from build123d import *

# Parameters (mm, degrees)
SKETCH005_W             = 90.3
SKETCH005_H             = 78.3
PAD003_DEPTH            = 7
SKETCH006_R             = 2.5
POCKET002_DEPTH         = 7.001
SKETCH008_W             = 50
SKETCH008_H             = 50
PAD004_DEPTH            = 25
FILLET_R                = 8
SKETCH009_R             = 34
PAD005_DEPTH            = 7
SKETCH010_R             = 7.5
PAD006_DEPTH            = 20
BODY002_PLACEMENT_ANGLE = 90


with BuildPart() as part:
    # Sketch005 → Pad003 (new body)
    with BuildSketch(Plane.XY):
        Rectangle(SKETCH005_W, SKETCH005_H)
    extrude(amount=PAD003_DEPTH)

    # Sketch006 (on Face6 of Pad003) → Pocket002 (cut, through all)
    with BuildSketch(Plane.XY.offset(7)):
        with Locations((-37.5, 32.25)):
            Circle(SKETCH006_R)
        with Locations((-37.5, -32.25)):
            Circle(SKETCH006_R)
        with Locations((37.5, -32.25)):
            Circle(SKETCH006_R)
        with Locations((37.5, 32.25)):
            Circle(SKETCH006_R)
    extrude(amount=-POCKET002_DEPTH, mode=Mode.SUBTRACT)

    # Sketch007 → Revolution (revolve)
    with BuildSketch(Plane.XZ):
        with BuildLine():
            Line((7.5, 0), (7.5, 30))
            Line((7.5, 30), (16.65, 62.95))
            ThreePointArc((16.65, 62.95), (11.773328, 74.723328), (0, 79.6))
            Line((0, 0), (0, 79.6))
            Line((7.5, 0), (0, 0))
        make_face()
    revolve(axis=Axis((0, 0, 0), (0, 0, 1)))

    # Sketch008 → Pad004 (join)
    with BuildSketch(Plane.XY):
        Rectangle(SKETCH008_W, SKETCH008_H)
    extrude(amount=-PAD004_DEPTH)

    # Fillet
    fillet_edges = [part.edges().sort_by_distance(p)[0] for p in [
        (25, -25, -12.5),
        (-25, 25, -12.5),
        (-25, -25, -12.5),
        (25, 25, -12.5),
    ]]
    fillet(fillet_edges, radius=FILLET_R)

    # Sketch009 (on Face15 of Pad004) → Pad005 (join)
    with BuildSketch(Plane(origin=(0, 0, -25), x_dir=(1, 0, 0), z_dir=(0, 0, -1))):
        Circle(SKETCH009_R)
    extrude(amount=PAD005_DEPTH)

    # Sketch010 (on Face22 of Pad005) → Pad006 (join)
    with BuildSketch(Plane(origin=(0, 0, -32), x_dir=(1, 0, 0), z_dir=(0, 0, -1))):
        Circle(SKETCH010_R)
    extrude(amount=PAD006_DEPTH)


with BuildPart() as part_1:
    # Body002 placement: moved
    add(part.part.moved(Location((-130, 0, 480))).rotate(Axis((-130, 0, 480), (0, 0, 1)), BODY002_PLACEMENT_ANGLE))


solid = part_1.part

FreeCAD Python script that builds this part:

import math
import FreeCAD as App
import Part
import Sketcher
from FreeCAD import Vector


def edges_at(feature, points):
    """Names of the edges that pass closest to the given points."""
    edges = feature.Shape.Edges
    near = lambda p: min(range(len(edges)), key=lambda i: edges[i].distToShape(Part.Vertex(*p))[0])
    return sorted({f"Edge{near(p) + 1}" for p in points})


def add_polygon(sketch, points):
    """Adds a closed chain of lines whose ends are joined by coincident constraints."""
    first, n = sketch.GeometryCount, len(points)
    for a, b in zip(points, points[1:] + points[:1]):
        sketch.addGeometry(Part.LineSegment(App.Vector(*a, 0), App.Vector(*b, 0)), False)
    for i in range(n):
        sketch.addConstraint(Sketcher.Constraint("Coincident", first + i, 2, first + (i + 1) % n, 1))

doc = App.newDocument("Part")
body = doc.addObject("PartDesign::Body", "Body")

# Sketch on XY plane
sketch1 = doc.addObject("Sketcher::SketchObject", "Sketch")
body.addObject(sketch1)
sketch1.AttachmentSupport = (doc.XY_Plane, [""])
sketch1.MapMode = "FlatFace"
add_polygon(sketch1, [(-45.15, 39.15), (-45.15, -39.15), (45.15, -39.15), (45.15, 39.15)])  # lines 0-3
sketch1.addConstraint(Sketcher.Constraint("Vertical", 0))
sketch1.addConstraint(Sketcher.Constraint("Horizontal", 1))
sketch1.addConstraint(Sketcher.Constraint("Vertical", 2))
sketch1.addConstraint(Sketcher.Constraint("Horizontal", 3))
sketch1.addConstraint(Sketcher.Constraint("Symmetric", 0, 2, 2, 2, -1, 1))
sketch1.addConstraint(Sketcher.Constraint("DistanceX", 1, 1, 1, 2, 90.3))
sketch1.addConstraint(Sketcher.Constraint("DistanceY", 0, 2, 0, 1, 78.3))
pad1 = doc.addObject("PartDesign::Pad", "Pad")
body.addObject(pad1)
pad1.Profile = sketch1
pad1.Length = 7

# Sketch on XY plane
sketch2 = doc.addObject("Sketcher::SketchObject", "Sketch001")
body.addObject(sketch2)
sketch2.AttachmentSupport = (doc.XY_Plane, [""])
sketch2.MapMode = "FlatFace"
sketch2.AttachmentOffset = App.Placement(Vector(0, 0, 7), App.Rotation())
sketch2.addGeometry(Part.Circle(Vector(-37.5, 32.25, 0), Vector(0, 0, 1), 2.5), False)
sketch2.addGeometry(Part.Circle(Vector(-37.5, -32.25, 0), Vector(0, 0, 1), 2.5), False)
sketch2.addGeometry(Part.Circle(Vector(37.5, -32.25, 0), Vector(0, 0, 1), 2.5), False)
sketch2.addGeometry(Part.Circle(Vector(37.5, 32.25, 0), Vector(0, 0, 1), 2.5), False)
sketch2.addConstraint(Sketcher.Constraint("Equal", 0, 1))
sketch2.addConstraint(Sketcher.Constraint("Equal", 1, 2))
sketch2.addConstraint(Sketcher.Constraint("Equal", 2, 3))
sketch2.addConstraint(Sketcher.Constraint("Symmetric", 0, 3, 2, 3, -1, 1))
sketch2.addConstraint(Sketcher.Constraint("Symmetric", 1, 3, 3, 3, -1, 1))
sketch2.addConstraint(Sketcher.Constraint("Symmetric", 1, 3, 2, 3, -2))
sketch2.addConstraint(Sketcher.Constraint("Diameter", 0, 5.0))
sketch2.addConstraint(Sketcher.Constraint("DistanceX", 1, 3, 2, 3, 75.0))
sketch2.addConstraint(Sketcher.Constraint("DistanceY", 1, 3, 0, 3, 64.5))
pocket1 = doc.addObject("PartDesign::Pocket", "Pocket")
body.addObject(pocket1)
pocket1.Profile = sketch2
pocket1.Type = "ThroughAll"

# Sketch on XZ plane
sketch3 = doc.addObject("Sketcher::SketchObject", "Sketch002")
body.addObject(sketch3)
sketch3.AttachmentSupport = (doc.XZ_Plane, [""])
sketch3.MapMode = "FlatFace"
sketch3.addGeometry(Part.LineSegment(Vector(7.5, 0, 0), Vector(7.5, 30, 0)), False)
sketch3.addGeometry(Part.LineSegment(Vector(7.5, 30, 0), Vector(16.65, 62.95, 0)), False)
sketch3.addGeometry(Part.ArcOfCircle(Part.Circle(Vector(0, 62.95, 0), Vector(0, 0, 1), 16.65), math.radians(-0.000001), math.radians(90.000001)), False)
sketch3.addGeometry(Part.LineSegment(Vector(0, 79.6, 0), Vector(0, 0, 0)), False)
sketch3.addGeometry(Part.LineSegment(Vector(0, 0, 0), Vector(7.5, 0, 0)), False)
sketch3.addConstraint(Sketcher.Constraint("Coincident", 0, 2, 1, 1))
sketch3.addConstraint(Sketcher.Constraint("Coincident", 1, 2, 2, 1))
sketch3.addConstraint(Sketcher.Constraint("Coincident", 2, 2, 3, 1))
sketch3.addConstraint(Sketcher.Constraint("Coincident", 3, 2, 4, 1))
sketch3.addConstraint(Sketcher.Constraint("Coincident", 4, 2, 0, 1))
sketch3.addConstraint(Sketcher.Constraint("Vertical", 0))
sketch3.addConstraint(Sketcher.Constraint("Vertical", 3))
sketch3.addConstraint(Sketcher.Constraint("Horizontal", 4))
sketch3.addConstraint(Sketcher.Constraint("Coincident", 3, 2, -1, 1))
sketch3.addConstraint(Sketcher.Constraint("PointOnObject", 2, 3, -2))
sketch3.addConstraint(Sketcher.Constraint("Horizontal", 2, 3, 1, 2))
sketch3.addConstraint(Sketcher.Constraint("DistanceY", 0, 1, 0, 2, 30.0))
sketch3.addConstraint(Sketcher.Constraint("Radius", 2, 16.65))
sketch3.addConstraint(Sketcher.Constraint("DistanceX", 4, 1, 4, 2, 7.5))
sketch3.addConstraint(Sketcher.Constraint("DistanceY", 3, 2, 3, 1, 79.6))
revolution = doc.addObject("PartDesign::Revolution", "Revolution")
body.addObject(revolution)
revolution.Profile = sketch3
revolution.ReferenceAxis = (sketch3, ["V_Axis"])
revolution.Angle = 360

# Sketch on XY plane
sketch4 = doc.addObject("Sketcher::SketchObject", "Sketch003")
body.addObject(sketch4)
sketch4.AttachmentSupport = (doc.XY_Plane, [""])
sketch4.MapMode = "FlatFace"
add_polygon(sketch4, [(-25, 25), (-25, -25), (25, -25), (25, 25)])  # lines 0-3
sketch4.addConstraint(Sketcher.Constraint("Vertical", 0))
sketch4.addConstraint(Sketcher.Constraint("Horizontal", 1))
sketch4.addConstraint(Sketcher.Constraint("Vertical", 2))
sketch4.addConstraint(Sketcher.Constraint("Horizontal", 3))
sketch4.addConstraint(Sketcher.Constraint("Symmetric", 0, 2, 2, 2, -1, 1))
sketch4.addConstraint(Sketcher.Constraint("Equal", 3, 0))
sketch4.addConstraint(Sketcher.Constraint("DistanceX", 1, 1, 1, 2, 50.0))
pad2 = doc.addObject("PartDesign::Pad", "Pad001")
body.addObject(pad2)
pad2.Profile = sketch4
pad2.Length = 25
pad2.Reversed = True
doc.recompute()

fillet = doc.addObject("PartDesign::Fillet", "Fillet")
body.addObject(fillet)
fillet.Base = (pad2, edges_at(pad2, [
    (25, -25, -12.5),
    (-25, 25, -12.5),
    (-25, -25, -12.5),
    (25, 25, -12.5),
]))
fillet.Radius = 8

# Sketch on XY plane
sketch5 = doc.addObject("Sketcher::SketchObject", "Sketch004")
body.addObject(sketch5)
sketch5.AttachmentSupport = (doc.XY_Plane, [""])
sketch5.MapMode = "FlatFace"
sketch5.AttachmentOffset = App.Placement(Vector(0, 0, -25), App.Rotation())
sketch5.addGeometry(Part.Circle(Vector(0, 0, 0), Vector(0, 0, 1), 34), False)
sketch5.addConstraint(Sketcher.Constraint("Coincident", 0, 3, -1, 1))
sketch5.addConstraint(Sketcher.Constraint("Diameter", 0, 68.0))
pad3 = doc.addObject("PartDesign::Pad", "Pad002")
body.addObject(pad3)
pad3.Profile = sketch5
pad3.Length = 7
pad3.Reversed = True

# Sketch on XY plane
sketch6 = doc.addObject("Sketcher::SketchObject", "Sketch005")
body.addObject(sketch6)
sketch6.AttachmentSupport = (doc.XY_Plane, [""])
sketch6.MapMode = "FlatFace"
sketch6.AttachmentOffset = App.Placement(Vector(0, 0, -32), App.Rotation())
sketch6.addGeometry(Part.Circle(Vector(0, 0, 0), Vector(0, 0, 1), 7.5), False)
sketch6.addConstraint(Sketcher.Constraint("Coincident", 0, 3, -1, 1))
sketch6.addConstraint(Sketcher.Constraint("Diameter", 0, 15.0))
pad4 = doc.addObject("PartDesign::Pad", "Pad003")
body.addObject(pad4)
pad4.Profile = sketch6
pad4.Length = 20
pad4.Reversed = True
body2 = doc.addObject("PartDesign::Body", "Body001")
doc.recompute()

body.Placement = App.Placement(Vector(-130, 0, 480), App.Rotation(Vector(0, 0, 1), 90))
boolean = doc.addObject("PartDesign::Boolean", "Boolean")
body2.addObject(boolean)
boolean.Type = "Fuse"
boolean.addObjects([body])

doc.recompute()
